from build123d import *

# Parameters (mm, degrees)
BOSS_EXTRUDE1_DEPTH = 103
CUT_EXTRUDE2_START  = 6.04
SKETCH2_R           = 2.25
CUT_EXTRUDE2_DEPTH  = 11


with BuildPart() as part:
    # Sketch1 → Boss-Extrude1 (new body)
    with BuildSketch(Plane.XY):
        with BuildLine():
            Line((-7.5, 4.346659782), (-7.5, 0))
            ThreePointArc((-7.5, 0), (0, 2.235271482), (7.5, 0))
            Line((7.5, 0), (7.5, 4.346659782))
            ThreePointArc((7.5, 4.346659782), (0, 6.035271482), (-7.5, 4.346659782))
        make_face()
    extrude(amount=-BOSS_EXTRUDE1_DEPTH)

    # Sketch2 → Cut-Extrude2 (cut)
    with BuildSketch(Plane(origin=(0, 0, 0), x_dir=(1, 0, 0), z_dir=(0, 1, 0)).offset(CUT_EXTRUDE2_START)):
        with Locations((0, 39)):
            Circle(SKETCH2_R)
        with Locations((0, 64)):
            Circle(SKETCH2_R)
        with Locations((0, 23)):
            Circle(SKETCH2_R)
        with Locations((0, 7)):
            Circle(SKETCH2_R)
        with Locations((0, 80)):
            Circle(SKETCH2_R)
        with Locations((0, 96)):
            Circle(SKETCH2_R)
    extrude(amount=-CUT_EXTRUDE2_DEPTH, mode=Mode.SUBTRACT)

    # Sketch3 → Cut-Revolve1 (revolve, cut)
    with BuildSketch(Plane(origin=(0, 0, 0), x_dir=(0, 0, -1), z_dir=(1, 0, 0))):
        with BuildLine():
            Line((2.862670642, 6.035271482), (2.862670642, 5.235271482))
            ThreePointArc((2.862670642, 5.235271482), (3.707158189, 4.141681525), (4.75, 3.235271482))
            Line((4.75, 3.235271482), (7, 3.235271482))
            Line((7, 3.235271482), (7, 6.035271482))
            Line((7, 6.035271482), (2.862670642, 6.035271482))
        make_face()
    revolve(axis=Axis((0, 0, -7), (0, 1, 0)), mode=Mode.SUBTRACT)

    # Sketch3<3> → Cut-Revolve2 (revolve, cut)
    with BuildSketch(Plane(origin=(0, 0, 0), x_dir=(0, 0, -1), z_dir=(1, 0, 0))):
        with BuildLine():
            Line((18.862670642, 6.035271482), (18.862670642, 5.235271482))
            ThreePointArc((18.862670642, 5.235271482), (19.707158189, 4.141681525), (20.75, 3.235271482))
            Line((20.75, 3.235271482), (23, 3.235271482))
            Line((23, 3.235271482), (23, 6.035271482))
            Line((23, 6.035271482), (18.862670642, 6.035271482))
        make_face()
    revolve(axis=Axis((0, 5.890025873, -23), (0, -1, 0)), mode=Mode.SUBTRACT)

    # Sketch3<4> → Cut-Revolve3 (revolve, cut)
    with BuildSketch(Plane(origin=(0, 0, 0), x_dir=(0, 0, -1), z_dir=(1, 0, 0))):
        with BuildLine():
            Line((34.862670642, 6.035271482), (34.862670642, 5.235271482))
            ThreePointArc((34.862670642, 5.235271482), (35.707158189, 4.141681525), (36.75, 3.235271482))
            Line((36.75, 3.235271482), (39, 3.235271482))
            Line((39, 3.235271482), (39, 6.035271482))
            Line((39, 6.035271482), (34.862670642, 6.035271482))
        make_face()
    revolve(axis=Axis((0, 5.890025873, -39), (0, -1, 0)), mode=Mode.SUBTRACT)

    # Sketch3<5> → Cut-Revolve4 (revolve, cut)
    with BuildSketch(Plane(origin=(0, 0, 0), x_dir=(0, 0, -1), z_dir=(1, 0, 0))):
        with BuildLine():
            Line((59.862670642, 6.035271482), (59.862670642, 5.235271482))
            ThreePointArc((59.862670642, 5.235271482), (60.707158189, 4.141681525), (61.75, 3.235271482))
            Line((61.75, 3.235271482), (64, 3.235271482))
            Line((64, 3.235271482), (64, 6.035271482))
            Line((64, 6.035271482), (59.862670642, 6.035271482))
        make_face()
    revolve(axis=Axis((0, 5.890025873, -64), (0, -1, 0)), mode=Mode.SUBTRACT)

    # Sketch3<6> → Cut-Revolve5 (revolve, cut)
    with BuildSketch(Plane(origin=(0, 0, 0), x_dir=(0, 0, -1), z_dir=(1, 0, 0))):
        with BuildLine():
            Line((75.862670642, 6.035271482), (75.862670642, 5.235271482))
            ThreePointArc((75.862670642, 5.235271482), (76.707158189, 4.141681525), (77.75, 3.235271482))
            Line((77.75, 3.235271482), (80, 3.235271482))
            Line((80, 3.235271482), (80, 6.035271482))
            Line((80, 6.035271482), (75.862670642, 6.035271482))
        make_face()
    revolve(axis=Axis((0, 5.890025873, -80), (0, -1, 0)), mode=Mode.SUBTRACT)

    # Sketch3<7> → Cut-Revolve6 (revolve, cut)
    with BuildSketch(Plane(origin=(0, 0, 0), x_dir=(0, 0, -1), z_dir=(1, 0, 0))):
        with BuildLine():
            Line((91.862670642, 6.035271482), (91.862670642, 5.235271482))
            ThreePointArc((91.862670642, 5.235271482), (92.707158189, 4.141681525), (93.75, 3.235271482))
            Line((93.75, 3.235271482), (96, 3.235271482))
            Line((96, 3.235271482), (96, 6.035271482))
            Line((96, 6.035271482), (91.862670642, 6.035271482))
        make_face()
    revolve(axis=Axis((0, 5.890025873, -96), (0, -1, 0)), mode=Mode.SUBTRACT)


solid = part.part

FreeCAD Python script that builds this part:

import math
import FreeCAD as App
import Part
import Sketcher
from FreeCAD import Vector

doc = App.newDocument("Part")
body = doc.addObject("PartDesign::Body", "Body")

# Sketch on XY plane
sketch1 = doc.addObject("Sketcher::SketchObject", "Sketch")
body.addObject(sketch1)
sketch1.AttachmentSupport = (doc.XY_Plane, [""])
sketch1.MapMode = "FlatFace"
sketch1.addGeometry([
    Part.LineSegment(Vector(-7.5, 4.34666, 0), Vector(-7.5, 0, 0)),
    Part.ArcOfCircle(Part.Circle(Vector(0, -11.464729, 0), Vector(0, 0, 1), 13.7), math.radians(56.808077), math.radians(123.191923)),
    Part.LineSegment(Vector(7.5, 0, 0), Vector(7.5, 4.34666, 0)),
    Part.ArcOfCircle(Part.Circle(Vector(0, -11.464729, 0), Vector(0, 0, 1), 17.5), math.radians(64.623066), math.radians(115.376934)),
], False)
sketch1.addConstraint([
    Sketcher.Constraint("Coincident", 0, 2, 1, 2),
    Sketcher.Constraint("Coincident", 1, 1, 2, 1),
    Sketcher.Constraint("Coincident", 2, 2, 3, 1),
    Sketcher.Constraint("Coincident", 3, 2, 0, 1),
    Sketcher.Constraint("Vertical", 0),
    Sketcher.Constraint("Vertical", 2),
    Sketcher.Constraint("Coincident", 3, 3, 1, 3),
    Sketcher.Constraint("Symmetric", 0, 2, 1, 1, -1, 1),
    Sketcher.Constraint("PointOnObject", 1, 3, -2),
    Sketcher.Constraint("Radius", 1, 13.7),
    Sketcher.Constraint("Radius", 3, 17.5),
    Sketcher.Constraint("DistanceX", 0, 2, 1, 1, 15.0),
])
pad1 = doc.addObject("PartDesign::Pad", "Pad")
body.addObject(pad1)
pad1.Profile = sketch1
pad1.Length = 103
pad1.Reversed = True

# Sketch on XZ plane
sketch2 = doc.addObject("Sketcher::SketchObject", "Sketch001")
body.addObject(sketch2)
sketch2.AttachmentSupport = (doc.XZ_Plane, [""])
sketch2.MapMode = "FlatFace"
sketch2.AttachmentOffset = App.Placement(Vector(0, 0, -6.04), App.Rotation())
sketch2.addGeometry([
    Part.Circle(Vector(0, -39, 0), Vector(0, 0, 1), 2.25),  # 0
    Part.Circle(Vector(0, -64, 0), Vector(0, 0, 1), 2.25),  # 1
    Part.Circle(Vector(0, -23, 0), Vector(0, 0, 1), 2.25),  # 2
    Part.Circle(Vector(0, -7, 0), Vector(0, 0, 1), 2.25),  # 3
    Part.Circle(Vector(0, -80, 0), Vector(0, 0, 1), 2.25),  # 4
    Part.Circle(Vector(0, -96, 0), Vector(0, 0, 1), 2.25),  # 5
], False)
sketch2.addConstraint([
    Sketcher.Constraint("Equal", 0, 1),
    Sketcher.Constraint("Equal", 1, 2),
    Sketcher.Constraint("Equal", 2, 3),
    Sketcher.Constraint("Equal", 3, 4),
    Sketcher.Constraint("Equal", 4, 5),
    Sketcher.Constraint("PointOnObject", 0, 3, -2),
    Sketcher.Constraint("PointOnObject", 1, 3, -2),
    Sketcher.Constraint("PointOnObject", 2, 3, -2),
    Sketcher.Constraint("PointOnObject", 3, 3, -2),
    Sketcher.Constraint("PointOnObject", 4, 3, -2),
    Sketcher.Constraint("PointOnObject", 5, 3, -2),
    Sketcher.Constraint("Diameter", 0, 4.5),
    Sketcher.Constraint("DistanceY", 0, 3, -1, 1, 39.0),
    Sketcher.Constraint("DistanceY", 1, 3, -1, 1, 64.0),
    Sketcher.Constraint("DistanceY", 2, 3, -1, 1, 23.0),
    Sketcher.Constraint("DistanceY", 3, 3, -1, 1, 7.0),
    Sketcher.Constraint("DistanceY", 4, 3, -1, 1, 80.0),
    Sketcher.Constraint("DistanceY", 5, 3, -1, 1, 96.0),
])
pocket1 = doc.addObject("PartDesign::Pocket", "Pocket")
body.addObject(pocket1)
pocket1.Profile = sketch2
pocket1.Length = 11
pocket1.Reversed = True

# Sketch on YZ plane
sketch3 = doc.addObject("Sketcher::SketchObject", "Sketch002")
body.addObject(sketch3)
sketch3.AttachmentSupport = (doc.YZ_Plane, [""])
sketch3.MapMode = "FlatFace"
sketch3.addGeometry([
    Part.LineSegment(Vector(6.035271, -2.862671, 0), Vector(5.235271, -2.862671, 0)),  # 0
    Part.ArcOfCircle(Part.Circle(Vector(8.945948, -8.798232, 0), Vector(0, 0, 1), 7), math.radians(122.011981), math.radians(144.667618)),  # 1
    Part.LineSegment(Vector(3.235271, -4.75, 0), Vector(3.235271, -7, 0)),  # 2
    Part.LineSegment(Vector(3.235271, -7, 0), Vector(6.035271, -7, 0)),  # 3
    Part.LineSegment(Vector(6.035271, -7, 0), Vector(6.035271, -2.862671, 0)),  # 4
], False)
sketch3.addGeometry(Part.LineSegment(Vector(3.235271, -7, 0), Vector(8.945948, -7, 0)), True)  # axis
sketch3.addConstraint([
    Sketcher.Constraint("Coincident", 0, 2, 1, 1),
    Sketcher.Constraint("Coincident", 1, 2, 2, 1),
    Sketcher.Constraint("Coincident", 2, 2, 3, 1),
    Sketcher.Constraint("Coincident", 3, 2, 4, 1),
    Sketcher.Constraint("Coincident", 4, 2, 0, 1),
    Sketcher.Constraint("Horizontal", 0),
    Sketcher.Constraint("Vertical", 2),
    Sketcher.Constraint("Horizontal", 3),
    Sketcher.Constraint("Vertical", 4),
    Sketcher.Constraint("Horizontal", 5),
    Sketcher.Constraint("Coincident", 5, 1, 2, 2),
    Sketcher.Constraint("Vertical", 1, 3, 5, 2),
    Sketcher.Constraint("Radius", 1, 7.0),
    Sketcher.Constraint("DistanceX", 0, 2, 0, 1, 0.8),
    Sketcher.Constraint("DistanceX", 3, 1, 3, 2, 2.8),
    Sketcher.Constraint("DistanceY", 2, 2, -1, 1, 7.0),
    Sketcher.Constraint("DistanceY", 2, 2, 2, 1, 2.25),
    Sketcher.Constraint("DistanceY", 4, 1, 4, 2, 4.137329),
    Sketcher.Constraint("DistanceX", -1, 1, 0, 2, 5.235271),
])
groove = doc.addObject("PartDesign::Groove", "Groove")
body.addObject(groove)
groove.Profile = sketch3
groove.ReferenceAxis = (sketch3, ["Axis0"])
groove.Angle = 360

# Sketch on YZ plane
sketch4 = doc.addObject("Sketcher::SketchObject", "Sketch003")
body.addObject(sketch4)
sketch4.AttachmentSupport = (doc.YZ_Plane, [""])
sketch4.MapMode = "FlatFace"
sketch4.addGeometry([
    Part.LineSegment(Vector(6.035271, -18.862671, 0), Vector(5.235271, -18.862671, 0)),  # 0
    Part.ArcOfCircle(Part.Circle(Vector(8.945948, -24.798232, 0), Vector(0, 0, 1), 7), math.radians(122.011981), math.radians(144.667618)),  # 1
    Part.LineSegment(Vector(3.235271, -20.75, 0), Vector(3.235271, -23, 0)),  # 2
    Part.LineSegment(Vector(3.235271, -23, 0), Vector(6.035271, -23, 0)),  # 3
    Part.LineSegment(Vector(6.035271, -23, 0), Vector(6.035271, -18.862671, 0)),  # 4
], False)
sketch4.addGeometry(Part.LineSegment(Vector(8.945948, -23, 0), Vector(3.235271, -23, 0)), True)  # axis
sketch4.addConstraint([
    Sketcher.Constraint("Coincident", 0, 2, 1, 1),
    Sketcher.Constraint("Coincident", 1, 2, 2, 1),
    Sketcher.Constraint("Coincident", 2, 2, 3, 1),
    Sketcher.Constraint("Coincident", 3, 2, 4, 1),
    Sketcher.Constraint("Coincident", 4, 2, 0, 1),
    Sketcher.Constraint("Horizontal", 0),
    Sketcher.Constraint("Vertical", 2),
    Sketcher.Constraint("Horizontal", 3),
    Sketcher.Constraint("Vertical", 4),
    Sketcher.Constraint("Horizontal", 5),
    Sketcher.Constraint("Coincident", 5, 2, 2, 2),
    Sketcher.Constraint("Vertical", 1, 3, 5, 1),
    Sketcher.Constraint("Radius", 1, 7.0),
    Sketcher.Constraint("DistanceX", 0, 2, 0, 1, 0.8),
    Sketcher.Constraint("DistanceX", 3, 1, 3, 2, 2.8),
    Sketcher.Constraint("DistanceY", 2, 2, -1, 1, 23.0),
    Sketcher.Constraint("DistanceY", 2, 2, 2, 1, 2.25),
    Sketcher.Constraint("DistanceY", 4, 1, 4, 2, 4.137329),
    Sketcher.Constraint("DistanceX", -1, 1, 0, 2, 5.235271),
])
groove2 = doc.addObject("PartDesign::Groove", "Groove001")
body.addObject(groove2)
groove2.Profile = sketch4
groove2.ReferenceAxis = (sketch4, ["Axis0"])
groove2.Angle = 360

# Sketch on YZ plane
sketch5 = doc.addObject("Sketcher::SketchObject", "Sketch004")
body.addObject(sketch5)
sketch5.AttachmentSupport = (doc.YZ_Plane, [""])
sketch5.MapMode = "FlatFace"
sketch5.addGeometry([
    Part.LineSegment(Vector(6.035271, -34.862671, 0), Vector(5.235271, -34.862671, 0)),  # 0
    Part.ArcOfCircle(Part.Circle(Vector(8.945948, -40.798232, 0), Vector(0, 0, 1), 7), math.radians(122.011981), math.radians(144.667618)),  # 1
    Part.LineSegment(Vector(3.235271, -36.75, 0), Vector(3.235271, -39, 0)),  # 2
    Part.LineSegment(Vector(3.235271, -39, 0), Vector(6.035271, -39, 0)),  # 3
    Part.LineSegment(Vector(6.035271, -39, 0), Vector(6.035271, -34.862671, 0)),  # 4
], False)
sketch5.addGeometry(Part.LineSegment(Vector(8.945948, -39, 0), Vector(3.235271, -39, 0)), True)  # axis
sketch5.addConstraint([
    Sketcher.Constraint("Coincident", 0, 2, 1, 1),
    Sketcher.Constraint("Coincident", 1, 2, 2, 1),
    Sketcher.Constraint("Coincident", 2, 2, 3, 1),
    Sketcher.Constraint("Coincident", 3, 2, 4, 1),
    Sketcher.Constraint("Coincident", 4, 2, 0, 1),
    Sketcher.Constraint("Horizontal", 0),
    Sketcher.Constraint("Vertical", 2),
    Sketcher.Constraint("Horizontal", 3),
    Sketcher.Constraint("Vertical", 4),
    Sketcher.Constraint("Horizontal", 5),
    Sketcher.Constraint("Coincident", 5, 2, 2, 2),
    Sketcher.Constraint("Vertical", 1, 3, 5, 1),
    Sketcher.Constraint("Radius", 1, 7.0),
    Sketcher.Constraint("DistanceX", 0, 2, 0, 1, 0.8),
    Sketcher.Constraint("DistanceX", 3, 1, 3, 2, 2.8),
    Sketcher.Constraint("DistanceY", 2, 2, -1, 1, 39.0),
    Sketcher.Constraint("DistanceY", 2, 2, 2, 1, 2.25),
    Sketcher.Constraint("DistanceY", 4, 1, 4, 2, 4.137329),
    Sketcher.Constraint("DistanceX", -1, 1, 0, 2, 5.235271),
])
groove3 = doc.addObject("PartDesign::Groove", "Groove002")
body.addObject(groove3)
groove3.Profile = sketch5
groove3.ReferenceAxis = (sketch5, ["Axis0"])
groove3.Angle = 360

# Sketch on YZ plane
sketch6 = doc.addObject("Sketcher::SketchObject", "Sketch005")
body.addObject(sketch6)
sketch6.AttachmentSupport = (doc.YZ_Plane, [""])
sketch6.MapMode = "FlatFace"
sketch6.addGeometry([
    Part.LineSegment(Vector(6.035271, -59.862671, 0), Vector(5.235271, -59.862671, 0)),  # 0
    Part.ArcOfCircle(Part.Circle(Vector(8.945948, -65.798232, 0), Vector(0, 0, 1), 7), math.radians(122.011981), math.radians(144.667618)),  # 1
    Part.LineSegment(Vector(3.235271, -61.75, 0), Vector(3.235271, -64, 0)),  # 2
    Part.LineSegment(Vector(3.235271, -64, 0), Vector(6.035271, -64, 0)),  # 3
    Part.LineSegment(Vector(6.035271, -64, 0), Vector(6.035271, -59.862671, 0)),  # 4
], False)
sketch6.addGeometry(Part.LineSegment(Vector(8.945948, -64, 0), Vector(3.235271, -64, 0)), True)  # axis
sketch6.addConstraint([
    Sketcher.Constraint("Coincident", 0, 2, 1, 1),
    Sketcher.Constraint("Coincident", 1, 2, 2, 1),
    Sketcher.Constraint("Coincident", 2, 2, 3, 1),
    Sketcher.Constraint("Coincident", 3, 2, 4, 1),
    Sketcher.Constraint("Coincident", 4, 2, 0, 1),
    Sketcher.Constraint("Horizontal", 0),
    Sketcher.Constraint("Vertical", 2),
    Sketcher.Constraint("Horizontal", 3),
    Sketcher.Constraint("Vertical", 4),
    Sketcher.Constraint("Horizontal", 5),
    Sketcher.Constraint("Coincident", 5, 2, 2, 2),
    Sketcher.Constraint("Vertical", 1, 3, 5, 1),
    Sketcher.Constraint("Radius", 1, 7.0),
    Sketcher.Constraint("DistanceX", 0, 2, 0, 1, 0.8),
    Sketcher.Constraint("DistanceX", 3, 1, 3, 2, 2.8),
    Sketcher.Constraint("DistanceY", 2, 2, -1, 1, 64.0),
    Sketcher.Constraint("DistanceY", 2, 2, 2, 1, 2.25),
    Sketcher.Constraint("DistanceY", 4, 1, 4, 2, 4.137329),
    Sketcher.Constraint("DistanceX", -1, 1, 0, 2, 5.235271),
])
groove4 = doc.addObject("PartDesign::Groove", "Groove003")
body.addObject(groove4)
groove4.Profile = sketch6
groove4.ReferenceAxis = (sketch6, ["Axis0"])
groove4.Angle = 360

# Sketch on YZ plane
sketch7 = doc.addObject("Sketcher::SketchObject", "Sketch006")
body.addObject(sketch7)
sketch7.AttachmentSupport = (doc.YZ_Plane, [""])
sketch7.MapMode = "FlatFace"
sketch7.addGeometry([
    Part.LineSegment(Vector(6.035271, -75.862671, 0), Vector(5.235271, -75.862671, 0)),  # 0
    Part.ArcOfCircle(Part.Circle(Vector(8.945948, -81.798232, 0), Vector(0, 0, 1), 7), math.radians(122.011981), math.radians(144.667618)),  # 1
    Part.LineSegment(Vector(3.235271, -77.75, 0), Vector(3.235271, -80, 0)),  # 2
    Part.LineSegment(Vector(3.235271, -80, 0), Vector(6.035271, -80, 0)),  # 3
    Part.LineSegment(Vector(6.035271, -80, 0), Vector(6.035271, -75.862671, 0)),  # 4
], False)
sketch7.addGeometry(Part.LineSegment(Vector(8.945948, -80, 0), Vector(3.235271, -80, 0)), True)  # axis
sketch7.addConstraint([
    Sketcher.Constraint("Coincident", 0, 2, 1, 1),
    Sketcher.Constraint("Coincident", 1, 2, 2, 1),
    Sketcher.Constraint("Coincident", 2, 2, 3, 1),
    Sketcher.Constraint("Coincident", 3, 2, 4, 1),
    Sketcher.Constraint("Coincident", 4, 2, 0, 1),
    Sketcher.Constraint("Horizontal", 0),
    Sketcher.Constraint("Vertical", 2),
    Sketcher.Constraint("Horizontal", 3),
    Sketcher.Constraint("Vertical", 4),
    Sketcher.Constraint("Horizontal", 5),
    Sketcher.Constraint("Coincident", 5, 2, 2, 2),
    Sketcher.Constraint("Vertical", 1, 3, 5, 1),
    Sketcher.Constraint("Radius", 1, 7.0),
    Sketcher.Constraint("DistanceX", 0, 2, 0, 1, 0.8),
    Sketcher.Constraint("DistanceX", 3, 1, 3, 2, 2.8),
    Sketcher.Constraint("DistanceY", 2, 2, -1, 1, 80.0),
    Sketcher.Constraint("DistanceY", 2, 2, 2, 1, 2.25),
    Sketcher.Constraint("DistanceY", 4, 1, 4, 2, 4.137329),
    Sketcher.Constraint("DistanceX", -1, 1, 0, 2, 5.235271),
])
groove5 = doc.addObject("PartDesign::Groove", "Groove004")
body.addObject(groove5)
groove5.Profile = sketch7
groove5.ReferenceAxis = (sketch7, ["Axis0"])
groove5.Angle = 360

# Sketch on YZ plane
sketch8 = doc.addObject("Sketcher::SketchObject", "Sketch007")
body.addObject(sketch8)
sketch8.AttachmentSupport = (doc.YZ_Plane, [""])
sketch8.MapMode = "FlatFace"
sketch8.addGeometry([
    Part.LineSegment(Vector(6.035271, -91.862671, 0), Vector(5.235271, -91.862671, 0)),  # 0
    Part.ArcOfCircle(Part.Circle(Vector(8.945948, -97.798232, 0), Vector(0, 0, 1), 7), math.radians(122.011981), math.radians(144.667618)),  # 1
    Part.LineSegment(Vector(3.235271, -93.75, 0), Vector(3.235271, -96, 0)),  # 2
    Part.LineSegment(Vector(3.235271, -96, 0), Vector(6.035271, -96, 0)),  # 3
    Part.LineSegment(Vector(6.035271, -96, 0), Vector(6.035271, -91.862671, 0)),  # 4
], False)
sketch8.addGeometry(Part.LineSegment(Vector(8.945948, -96, 0), Vector(3.235271, -96, 0)), True)  # axis
sketch8.addConstraint([
    Sketcher.Constraint("Coincident", 0, 2, 1, 1),
    Sketcher.Constraint("Coincident", 1, 2, 2, 1),
    Sketcher.Constraint("Coincident", 2, 2, 3, 1),
    Sketcher.Constraint("Coincident", 3, 2, 4, 1),
    Sketcher.Constraint("Coincident", 4, 2, 0, 1),
    Sketcher.Constraint("Horizontal", 0),
    Sketcher.Constraint("Vertical", 2),
    Sketcher.Constraint("Horizontal", 3),
    Sketcher.Constraint("Vertical", 4),
    Sketcher.Constraint("Horizontal", 5),
    Sketcher.Constraint("Coincident", 5, 2, 2, 2),
    Sketcher.Constraint("Vertical", 1, 3, 5, 1),
    Sketcher.Constraint("Radius", 1, 7.0),
    Sketcher.Constraint("DistanceX", 0, 2, 0, 1, 0.8),
    Sketcher.Constraint("DistanceX", 3, 1, 3, 2, 2.8),
    Sketcher.Constraint("DistanceY", 2, 2, -1, 1, 96.0),
    Sketcher.Constraint("DistanceY", 2, 2, 2, 1, 2.25),
    Sketcher.Constraint("DistanceY", 4, 1, 4, 2, 4.137329),
    Sketcher.Constraint("DistanceX", -1, 1, 0, 2, 5.235271),
])
groove6 = doc.addObject("PartDesign::Groove", "Groove005")
body.addObject(groove6)
groove6.Profile = sketch8
groove6.ReferenceAxis = (sketch8, ["Axis0"])
groove6.Angle = 360

doc.recompute()
